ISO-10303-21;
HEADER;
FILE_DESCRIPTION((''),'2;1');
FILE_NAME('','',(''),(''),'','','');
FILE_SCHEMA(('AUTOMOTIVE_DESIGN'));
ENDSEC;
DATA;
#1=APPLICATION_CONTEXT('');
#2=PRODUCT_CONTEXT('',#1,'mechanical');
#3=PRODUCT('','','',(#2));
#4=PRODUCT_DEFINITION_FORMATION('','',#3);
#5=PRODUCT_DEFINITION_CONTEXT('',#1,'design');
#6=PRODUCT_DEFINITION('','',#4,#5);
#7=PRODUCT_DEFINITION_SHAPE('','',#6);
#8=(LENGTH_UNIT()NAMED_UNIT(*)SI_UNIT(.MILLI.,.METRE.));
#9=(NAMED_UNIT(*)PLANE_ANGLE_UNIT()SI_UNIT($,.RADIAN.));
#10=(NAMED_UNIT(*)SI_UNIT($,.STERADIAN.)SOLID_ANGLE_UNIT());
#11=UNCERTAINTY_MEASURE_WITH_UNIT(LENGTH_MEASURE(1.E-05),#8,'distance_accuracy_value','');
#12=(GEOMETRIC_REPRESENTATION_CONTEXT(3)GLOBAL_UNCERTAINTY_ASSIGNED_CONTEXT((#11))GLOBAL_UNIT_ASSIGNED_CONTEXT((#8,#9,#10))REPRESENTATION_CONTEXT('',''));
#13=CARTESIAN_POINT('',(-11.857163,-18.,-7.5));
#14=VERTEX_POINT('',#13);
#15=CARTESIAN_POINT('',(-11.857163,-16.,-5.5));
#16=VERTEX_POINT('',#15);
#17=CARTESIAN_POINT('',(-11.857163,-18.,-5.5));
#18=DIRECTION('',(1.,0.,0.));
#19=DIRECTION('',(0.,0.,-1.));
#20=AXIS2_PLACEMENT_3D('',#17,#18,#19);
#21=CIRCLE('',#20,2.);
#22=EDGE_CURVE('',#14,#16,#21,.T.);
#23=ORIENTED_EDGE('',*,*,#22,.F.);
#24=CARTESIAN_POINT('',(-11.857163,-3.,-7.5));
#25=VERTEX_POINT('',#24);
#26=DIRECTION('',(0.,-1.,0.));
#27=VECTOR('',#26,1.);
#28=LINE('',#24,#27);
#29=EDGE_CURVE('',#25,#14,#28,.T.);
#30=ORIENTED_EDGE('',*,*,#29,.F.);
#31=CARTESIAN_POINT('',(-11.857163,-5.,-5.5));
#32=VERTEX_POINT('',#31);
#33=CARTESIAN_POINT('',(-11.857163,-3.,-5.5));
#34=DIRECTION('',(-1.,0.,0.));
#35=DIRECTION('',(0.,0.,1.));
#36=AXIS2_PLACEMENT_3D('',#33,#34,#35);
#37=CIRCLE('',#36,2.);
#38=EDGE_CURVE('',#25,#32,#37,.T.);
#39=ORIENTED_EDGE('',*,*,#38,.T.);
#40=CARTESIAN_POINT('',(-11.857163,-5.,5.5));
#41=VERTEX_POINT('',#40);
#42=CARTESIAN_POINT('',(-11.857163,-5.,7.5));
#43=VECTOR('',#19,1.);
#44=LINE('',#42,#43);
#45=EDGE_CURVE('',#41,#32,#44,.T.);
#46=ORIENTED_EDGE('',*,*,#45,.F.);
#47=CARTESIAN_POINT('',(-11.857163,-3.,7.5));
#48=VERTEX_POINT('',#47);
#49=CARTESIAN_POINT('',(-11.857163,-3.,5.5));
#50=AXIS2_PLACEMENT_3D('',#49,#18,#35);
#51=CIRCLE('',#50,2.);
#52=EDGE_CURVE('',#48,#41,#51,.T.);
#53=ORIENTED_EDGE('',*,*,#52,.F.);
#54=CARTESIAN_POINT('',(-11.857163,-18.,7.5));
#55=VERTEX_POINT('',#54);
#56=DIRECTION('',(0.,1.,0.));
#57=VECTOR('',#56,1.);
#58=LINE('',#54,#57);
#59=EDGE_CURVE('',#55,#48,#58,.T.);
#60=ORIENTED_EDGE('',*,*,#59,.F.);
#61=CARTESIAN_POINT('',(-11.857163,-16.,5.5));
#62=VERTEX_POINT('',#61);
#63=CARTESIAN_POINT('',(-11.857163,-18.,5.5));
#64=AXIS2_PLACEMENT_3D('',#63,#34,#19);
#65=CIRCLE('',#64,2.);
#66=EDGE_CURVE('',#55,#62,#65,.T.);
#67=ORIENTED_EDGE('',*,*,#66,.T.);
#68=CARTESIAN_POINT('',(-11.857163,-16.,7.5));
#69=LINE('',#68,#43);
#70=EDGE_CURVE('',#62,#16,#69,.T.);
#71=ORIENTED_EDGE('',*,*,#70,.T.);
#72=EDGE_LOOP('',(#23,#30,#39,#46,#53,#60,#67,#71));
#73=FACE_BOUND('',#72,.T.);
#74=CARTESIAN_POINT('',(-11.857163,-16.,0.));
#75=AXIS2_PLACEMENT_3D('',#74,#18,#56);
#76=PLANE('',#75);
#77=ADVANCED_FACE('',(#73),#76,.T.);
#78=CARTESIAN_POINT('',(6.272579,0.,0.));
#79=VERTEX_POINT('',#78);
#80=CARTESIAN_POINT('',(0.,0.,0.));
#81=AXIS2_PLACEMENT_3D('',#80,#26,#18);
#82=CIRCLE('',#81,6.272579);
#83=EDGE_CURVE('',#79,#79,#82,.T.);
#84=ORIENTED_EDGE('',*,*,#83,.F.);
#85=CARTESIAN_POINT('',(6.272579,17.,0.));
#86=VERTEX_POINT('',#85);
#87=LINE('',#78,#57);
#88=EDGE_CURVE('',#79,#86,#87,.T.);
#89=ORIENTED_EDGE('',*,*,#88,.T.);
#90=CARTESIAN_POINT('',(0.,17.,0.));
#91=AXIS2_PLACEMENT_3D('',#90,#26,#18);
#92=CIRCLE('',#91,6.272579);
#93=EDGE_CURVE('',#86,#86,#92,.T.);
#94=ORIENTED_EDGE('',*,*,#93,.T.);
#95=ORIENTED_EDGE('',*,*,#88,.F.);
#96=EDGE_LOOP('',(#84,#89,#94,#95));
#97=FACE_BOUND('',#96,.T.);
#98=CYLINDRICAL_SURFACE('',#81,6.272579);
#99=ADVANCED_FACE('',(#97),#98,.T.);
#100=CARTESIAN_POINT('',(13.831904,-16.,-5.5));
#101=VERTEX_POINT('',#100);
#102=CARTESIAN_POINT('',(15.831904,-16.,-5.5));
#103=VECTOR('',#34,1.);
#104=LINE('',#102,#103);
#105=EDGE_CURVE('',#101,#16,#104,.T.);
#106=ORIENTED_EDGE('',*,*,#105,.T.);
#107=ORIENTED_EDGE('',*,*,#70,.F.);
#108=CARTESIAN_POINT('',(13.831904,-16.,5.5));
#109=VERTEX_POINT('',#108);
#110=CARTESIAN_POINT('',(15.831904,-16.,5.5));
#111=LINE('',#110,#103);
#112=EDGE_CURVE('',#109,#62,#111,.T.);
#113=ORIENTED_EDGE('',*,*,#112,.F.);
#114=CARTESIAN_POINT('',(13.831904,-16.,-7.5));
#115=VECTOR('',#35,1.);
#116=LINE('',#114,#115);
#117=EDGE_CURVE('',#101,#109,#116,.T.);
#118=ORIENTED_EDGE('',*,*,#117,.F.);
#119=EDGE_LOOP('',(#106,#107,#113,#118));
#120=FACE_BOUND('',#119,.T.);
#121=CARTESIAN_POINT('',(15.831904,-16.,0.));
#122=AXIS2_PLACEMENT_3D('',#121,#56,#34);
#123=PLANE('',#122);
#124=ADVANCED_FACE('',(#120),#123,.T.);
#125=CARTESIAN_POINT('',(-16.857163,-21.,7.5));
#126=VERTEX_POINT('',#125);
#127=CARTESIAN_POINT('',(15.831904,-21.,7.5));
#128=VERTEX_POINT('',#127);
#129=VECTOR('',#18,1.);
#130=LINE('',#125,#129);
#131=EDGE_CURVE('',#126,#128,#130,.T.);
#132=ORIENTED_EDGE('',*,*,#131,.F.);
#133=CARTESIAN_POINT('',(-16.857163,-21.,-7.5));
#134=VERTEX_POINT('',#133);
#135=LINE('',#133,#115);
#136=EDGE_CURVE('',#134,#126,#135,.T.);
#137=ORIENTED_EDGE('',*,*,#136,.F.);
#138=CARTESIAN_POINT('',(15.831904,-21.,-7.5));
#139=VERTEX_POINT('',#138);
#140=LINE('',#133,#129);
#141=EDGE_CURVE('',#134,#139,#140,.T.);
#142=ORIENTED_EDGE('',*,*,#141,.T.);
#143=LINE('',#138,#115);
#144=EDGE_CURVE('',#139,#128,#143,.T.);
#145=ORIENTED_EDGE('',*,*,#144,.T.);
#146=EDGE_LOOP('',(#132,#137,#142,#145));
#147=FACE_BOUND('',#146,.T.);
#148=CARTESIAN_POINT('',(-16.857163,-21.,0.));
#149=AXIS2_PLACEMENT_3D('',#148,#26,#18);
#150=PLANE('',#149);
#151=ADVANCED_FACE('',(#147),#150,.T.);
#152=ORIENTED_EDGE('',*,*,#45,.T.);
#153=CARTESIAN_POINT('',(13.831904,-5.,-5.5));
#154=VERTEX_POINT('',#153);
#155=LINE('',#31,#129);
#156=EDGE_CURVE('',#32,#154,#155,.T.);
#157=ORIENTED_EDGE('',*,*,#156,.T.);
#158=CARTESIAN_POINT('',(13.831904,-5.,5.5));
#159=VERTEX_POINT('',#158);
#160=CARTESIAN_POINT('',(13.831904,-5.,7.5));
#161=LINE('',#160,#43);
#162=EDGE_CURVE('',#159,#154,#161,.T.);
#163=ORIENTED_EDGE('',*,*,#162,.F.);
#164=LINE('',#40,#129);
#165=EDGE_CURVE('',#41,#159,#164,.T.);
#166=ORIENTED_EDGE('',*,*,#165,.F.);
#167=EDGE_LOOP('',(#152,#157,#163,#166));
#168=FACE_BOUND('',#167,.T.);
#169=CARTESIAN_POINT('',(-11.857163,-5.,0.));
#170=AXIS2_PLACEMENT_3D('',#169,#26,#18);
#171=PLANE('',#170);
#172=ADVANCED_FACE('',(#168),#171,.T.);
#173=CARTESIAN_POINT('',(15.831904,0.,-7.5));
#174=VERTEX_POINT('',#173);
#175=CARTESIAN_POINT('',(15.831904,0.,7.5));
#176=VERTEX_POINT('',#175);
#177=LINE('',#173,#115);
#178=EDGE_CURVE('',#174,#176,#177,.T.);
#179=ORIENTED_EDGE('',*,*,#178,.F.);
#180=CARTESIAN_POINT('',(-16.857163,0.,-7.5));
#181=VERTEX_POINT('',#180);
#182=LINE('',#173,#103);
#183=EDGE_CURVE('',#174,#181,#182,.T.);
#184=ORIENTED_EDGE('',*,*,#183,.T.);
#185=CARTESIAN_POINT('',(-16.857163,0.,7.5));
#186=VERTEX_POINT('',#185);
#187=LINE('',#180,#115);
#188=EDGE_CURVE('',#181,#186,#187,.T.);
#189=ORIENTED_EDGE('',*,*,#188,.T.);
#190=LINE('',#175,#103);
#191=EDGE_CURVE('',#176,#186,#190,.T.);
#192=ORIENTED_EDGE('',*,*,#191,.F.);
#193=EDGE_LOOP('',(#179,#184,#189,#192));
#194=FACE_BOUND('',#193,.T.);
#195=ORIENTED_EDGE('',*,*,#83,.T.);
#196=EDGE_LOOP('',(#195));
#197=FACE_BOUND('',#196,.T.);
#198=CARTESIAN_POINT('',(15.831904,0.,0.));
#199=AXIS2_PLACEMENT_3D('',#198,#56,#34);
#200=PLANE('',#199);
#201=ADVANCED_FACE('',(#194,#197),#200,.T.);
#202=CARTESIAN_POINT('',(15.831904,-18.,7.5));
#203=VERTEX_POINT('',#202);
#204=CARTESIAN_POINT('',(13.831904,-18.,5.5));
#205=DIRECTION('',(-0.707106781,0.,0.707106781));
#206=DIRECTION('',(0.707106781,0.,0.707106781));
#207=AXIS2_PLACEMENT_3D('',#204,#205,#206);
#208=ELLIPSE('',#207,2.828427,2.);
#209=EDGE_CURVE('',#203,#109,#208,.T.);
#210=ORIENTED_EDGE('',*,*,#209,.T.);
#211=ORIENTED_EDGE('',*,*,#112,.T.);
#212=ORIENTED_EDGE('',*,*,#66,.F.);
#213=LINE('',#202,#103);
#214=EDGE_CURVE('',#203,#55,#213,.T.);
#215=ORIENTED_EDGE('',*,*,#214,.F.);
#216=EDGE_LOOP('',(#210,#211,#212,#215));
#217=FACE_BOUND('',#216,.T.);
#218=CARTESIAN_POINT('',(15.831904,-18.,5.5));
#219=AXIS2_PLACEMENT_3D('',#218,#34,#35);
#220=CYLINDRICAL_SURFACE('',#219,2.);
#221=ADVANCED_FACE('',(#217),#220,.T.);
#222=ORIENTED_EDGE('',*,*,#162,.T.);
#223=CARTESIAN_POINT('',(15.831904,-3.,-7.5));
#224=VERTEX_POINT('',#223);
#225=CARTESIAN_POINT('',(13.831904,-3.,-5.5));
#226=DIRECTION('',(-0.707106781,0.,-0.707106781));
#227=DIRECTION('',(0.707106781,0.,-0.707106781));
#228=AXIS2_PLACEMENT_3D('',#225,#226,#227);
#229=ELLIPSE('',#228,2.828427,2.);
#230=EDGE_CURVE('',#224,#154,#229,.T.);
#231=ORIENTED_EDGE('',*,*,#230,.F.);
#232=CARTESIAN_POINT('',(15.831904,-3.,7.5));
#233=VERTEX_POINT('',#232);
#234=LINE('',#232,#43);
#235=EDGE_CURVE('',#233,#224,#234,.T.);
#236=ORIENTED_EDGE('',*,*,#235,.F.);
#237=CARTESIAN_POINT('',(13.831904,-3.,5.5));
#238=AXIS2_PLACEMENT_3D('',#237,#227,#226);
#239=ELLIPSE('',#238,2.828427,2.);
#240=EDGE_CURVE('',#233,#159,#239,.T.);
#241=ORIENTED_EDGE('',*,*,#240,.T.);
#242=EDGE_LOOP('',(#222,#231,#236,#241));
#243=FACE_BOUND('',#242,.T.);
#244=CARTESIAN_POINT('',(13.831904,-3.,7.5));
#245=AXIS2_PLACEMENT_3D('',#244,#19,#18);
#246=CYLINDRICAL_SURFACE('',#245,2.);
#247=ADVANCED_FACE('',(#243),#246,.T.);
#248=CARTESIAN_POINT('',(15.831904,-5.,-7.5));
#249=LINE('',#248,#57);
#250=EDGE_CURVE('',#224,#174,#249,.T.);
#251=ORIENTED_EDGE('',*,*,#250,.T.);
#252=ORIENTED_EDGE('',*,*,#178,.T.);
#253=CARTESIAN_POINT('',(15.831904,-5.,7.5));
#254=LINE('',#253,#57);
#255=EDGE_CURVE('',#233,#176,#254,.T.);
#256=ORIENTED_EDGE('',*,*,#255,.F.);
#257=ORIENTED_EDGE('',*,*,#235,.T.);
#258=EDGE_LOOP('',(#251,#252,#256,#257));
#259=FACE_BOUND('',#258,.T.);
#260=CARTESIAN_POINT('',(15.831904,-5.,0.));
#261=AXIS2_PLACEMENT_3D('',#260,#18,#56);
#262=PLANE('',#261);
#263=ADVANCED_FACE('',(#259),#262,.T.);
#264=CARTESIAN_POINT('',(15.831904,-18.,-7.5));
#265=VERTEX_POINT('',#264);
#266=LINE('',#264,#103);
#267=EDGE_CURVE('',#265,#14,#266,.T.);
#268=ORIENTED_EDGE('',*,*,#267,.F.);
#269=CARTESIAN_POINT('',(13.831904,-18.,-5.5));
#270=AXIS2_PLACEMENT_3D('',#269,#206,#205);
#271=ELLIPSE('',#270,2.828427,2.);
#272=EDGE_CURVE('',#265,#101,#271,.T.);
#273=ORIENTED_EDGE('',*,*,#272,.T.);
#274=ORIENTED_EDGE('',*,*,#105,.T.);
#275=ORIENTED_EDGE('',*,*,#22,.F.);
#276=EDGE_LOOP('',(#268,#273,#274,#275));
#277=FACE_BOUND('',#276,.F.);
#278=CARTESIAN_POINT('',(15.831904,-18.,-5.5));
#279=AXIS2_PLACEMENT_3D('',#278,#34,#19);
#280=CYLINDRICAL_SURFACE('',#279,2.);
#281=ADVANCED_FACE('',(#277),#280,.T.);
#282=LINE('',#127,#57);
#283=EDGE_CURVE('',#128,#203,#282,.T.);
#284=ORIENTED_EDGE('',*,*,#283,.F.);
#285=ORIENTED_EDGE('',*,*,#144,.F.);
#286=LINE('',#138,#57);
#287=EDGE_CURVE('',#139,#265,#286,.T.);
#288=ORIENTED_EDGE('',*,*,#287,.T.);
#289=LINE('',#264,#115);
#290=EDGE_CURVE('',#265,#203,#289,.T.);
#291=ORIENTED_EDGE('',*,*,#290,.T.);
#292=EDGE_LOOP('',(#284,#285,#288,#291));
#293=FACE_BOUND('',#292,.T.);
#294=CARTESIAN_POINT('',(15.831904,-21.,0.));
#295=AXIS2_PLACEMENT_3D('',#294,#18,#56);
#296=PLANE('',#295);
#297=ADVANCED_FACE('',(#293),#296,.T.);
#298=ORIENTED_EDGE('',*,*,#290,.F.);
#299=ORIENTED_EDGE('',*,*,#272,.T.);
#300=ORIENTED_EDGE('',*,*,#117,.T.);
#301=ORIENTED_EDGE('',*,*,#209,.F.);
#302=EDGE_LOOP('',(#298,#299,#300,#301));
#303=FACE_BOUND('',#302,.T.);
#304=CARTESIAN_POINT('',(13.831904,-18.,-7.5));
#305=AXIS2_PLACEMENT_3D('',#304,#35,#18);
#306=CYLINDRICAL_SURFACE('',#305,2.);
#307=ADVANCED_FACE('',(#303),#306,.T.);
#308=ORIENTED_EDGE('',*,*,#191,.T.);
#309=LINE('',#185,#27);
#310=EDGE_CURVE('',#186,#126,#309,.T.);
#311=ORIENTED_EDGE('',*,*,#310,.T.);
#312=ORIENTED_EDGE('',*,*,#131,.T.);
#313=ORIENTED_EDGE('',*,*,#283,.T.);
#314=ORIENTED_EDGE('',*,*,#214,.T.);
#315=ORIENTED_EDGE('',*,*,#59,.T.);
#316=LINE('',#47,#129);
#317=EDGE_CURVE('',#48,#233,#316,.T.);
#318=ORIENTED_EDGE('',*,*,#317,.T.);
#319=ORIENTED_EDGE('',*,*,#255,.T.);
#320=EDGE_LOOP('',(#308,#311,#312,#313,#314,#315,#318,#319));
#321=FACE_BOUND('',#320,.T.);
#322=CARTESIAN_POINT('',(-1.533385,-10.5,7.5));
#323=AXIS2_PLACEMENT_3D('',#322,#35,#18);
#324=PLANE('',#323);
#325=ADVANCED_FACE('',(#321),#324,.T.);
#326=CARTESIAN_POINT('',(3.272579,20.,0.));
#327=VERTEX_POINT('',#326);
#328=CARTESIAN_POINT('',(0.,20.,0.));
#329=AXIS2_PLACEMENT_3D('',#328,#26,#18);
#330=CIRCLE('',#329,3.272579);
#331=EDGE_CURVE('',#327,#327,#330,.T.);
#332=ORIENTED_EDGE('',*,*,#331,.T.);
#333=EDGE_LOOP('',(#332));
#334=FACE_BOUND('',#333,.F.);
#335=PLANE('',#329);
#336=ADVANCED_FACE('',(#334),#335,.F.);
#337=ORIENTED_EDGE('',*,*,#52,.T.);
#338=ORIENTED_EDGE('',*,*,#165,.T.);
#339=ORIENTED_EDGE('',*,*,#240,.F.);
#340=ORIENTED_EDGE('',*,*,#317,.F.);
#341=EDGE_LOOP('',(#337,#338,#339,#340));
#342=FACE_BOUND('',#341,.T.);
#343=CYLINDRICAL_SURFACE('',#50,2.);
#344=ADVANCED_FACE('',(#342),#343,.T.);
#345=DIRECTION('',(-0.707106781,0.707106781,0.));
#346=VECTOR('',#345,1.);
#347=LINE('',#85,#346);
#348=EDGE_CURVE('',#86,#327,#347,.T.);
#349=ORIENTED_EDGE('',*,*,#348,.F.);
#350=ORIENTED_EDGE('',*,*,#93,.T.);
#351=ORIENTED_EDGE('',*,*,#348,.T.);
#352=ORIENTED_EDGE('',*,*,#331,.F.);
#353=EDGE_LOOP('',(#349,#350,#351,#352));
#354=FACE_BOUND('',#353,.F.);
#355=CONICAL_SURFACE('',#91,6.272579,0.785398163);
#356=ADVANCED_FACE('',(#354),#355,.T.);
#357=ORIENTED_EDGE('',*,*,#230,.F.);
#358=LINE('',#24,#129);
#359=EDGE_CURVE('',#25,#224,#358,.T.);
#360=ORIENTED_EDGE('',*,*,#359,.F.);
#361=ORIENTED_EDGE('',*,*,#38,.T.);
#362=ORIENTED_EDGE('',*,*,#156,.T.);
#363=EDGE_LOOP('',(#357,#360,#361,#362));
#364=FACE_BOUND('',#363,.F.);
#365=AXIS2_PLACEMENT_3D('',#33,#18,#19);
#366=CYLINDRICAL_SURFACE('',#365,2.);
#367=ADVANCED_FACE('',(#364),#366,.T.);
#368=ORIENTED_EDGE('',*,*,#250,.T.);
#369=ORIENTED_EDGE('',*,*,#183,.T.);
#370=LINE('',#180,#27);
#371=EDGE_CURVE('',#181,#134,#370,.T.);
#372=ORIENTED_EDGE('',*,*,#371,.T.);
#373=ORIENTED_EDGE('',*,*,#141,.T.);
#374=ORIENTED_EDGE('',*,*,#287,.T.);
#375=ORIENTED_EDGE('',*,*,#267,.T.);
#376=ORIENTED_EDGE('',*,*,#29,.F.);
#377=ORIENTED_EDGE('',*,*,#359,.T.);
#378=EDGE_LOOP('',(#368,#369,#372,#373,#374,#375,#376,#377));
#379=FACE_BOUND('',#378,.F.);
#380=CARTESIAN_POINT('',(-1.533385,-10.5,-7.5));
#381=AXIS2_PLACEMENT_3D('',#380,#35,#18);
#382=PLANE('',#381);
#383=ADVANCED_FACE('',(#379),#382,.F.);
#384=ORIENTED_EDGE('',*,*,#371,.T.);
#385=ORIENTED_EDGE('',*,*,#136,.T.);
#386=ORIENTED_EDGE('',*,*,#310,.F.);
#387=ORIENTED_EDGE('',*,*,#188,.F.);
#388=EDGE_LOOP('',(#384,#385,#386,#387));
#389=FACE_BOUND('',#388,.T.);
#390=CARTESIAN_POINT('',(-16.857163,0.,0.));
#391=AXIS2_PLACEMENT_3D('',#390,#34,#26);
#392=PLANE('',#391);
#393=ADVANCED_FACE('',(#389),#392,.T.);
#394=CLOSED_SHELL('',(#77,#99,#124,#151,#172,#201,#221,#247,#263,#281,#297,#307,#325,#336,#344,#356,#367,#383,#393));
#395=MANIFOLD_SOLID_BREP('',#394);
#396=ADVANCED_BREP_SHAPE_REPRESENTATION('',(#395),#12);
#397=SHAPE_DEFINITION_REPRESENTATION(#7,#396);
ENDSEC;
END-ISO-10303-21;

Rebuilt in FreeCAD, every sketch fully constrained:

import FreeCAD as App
import Part
import Sketcher

V = App.Vector


def edges_at(feature, points):
    """Names of the edges that pass closest to the given points."""
    edges = feature.Shape.Edges
    near = lambda p: min(range(len(edges)), key=lambda i: edges[i].distToShape(Part.Vertex(*p))[0])
    return sorted({f"Edge{near(p) + 1}" for p in points})


def add_polygon(sketch, points):
    """Adds a closed chain of lines whose ends are joined by coincident constraints."""
    first, n = sketch.GeometryCount, len(points)
    for a, b in zip(points, points[1:] + points[:1]):
        sketch.addGeometry(Part.LineSegment(App.Vector(*a, 0), App.Vector(*b, 0)), False)
    for i in range(n):
        sketch.addConstraint(Sketcher.Constraint("Coincident", first + i, 2, first + (i + 1) % n, 1))

doc = App.newDocument("Part")
body = doc.addObject("PartDesign::Body", "Body")

# Sketch on XY plane
sketch1 = body.newObject("Sketcher::SketchObject", "Sketch")
sketch1.AttachmentSupport = (doc.getObject("XY_Plane"), [""])
sketch1.MapMode = "FlatFace"
add_polygon(sketch1, [(15.831904, -5), (15.831904, 0), (-16.857163, 0), (-16.857163, -21), (15.831904, -21), (15.831904, -16), (-11.857163, -16), (-11.857163, -5)])  # lines 0-7
sketch1.addConstraint([
    Sketcher.Constraint("Vertical", 0),
    Sketcher.Constraint("Horizontal", 1),
    Sketcher.Constraint("Vertical", 2),
    Sketcher.Constraint("Horizontal", 3),
    Sketcher.Constraint("Vertical", 4),
    Sketcher.Constraint("Horizontal", 5),
    Sketcher.Constraint("Vertical", 6),
    Sketcher.Constraint("Horizontal", 7),
    Sketcher.Constraint("PointOnObject", 0, 2, -1),
    Sketcher.Constraint("Vertical", 0, 2, 3, 2),
    Sketcher.Constraint("Equal", 0, 4),
    Sketcher.Constraint("DistanceY", 0, 1, 0, 2, 5.0),
    Sketcher.Constraint("DistanceY", 2, 2, 2, 1, 21.0),
    Sketcher.Constraint("DistanceX", 2, 2, 5, 2, 5.0),
    Sketcher.Constraint("DistanceX", 1, 2, 1, 1, 32.689067),
    Sketcher.Constraint("DistanceX", -1, 1, 0, 2, 15.831904),
])
pad1 = body.newObject("PartDesign::Pad", "Pad")
pad1.Profile = sketch1
pad1.Length = 15
pad1.Midplane = True

# Sketch on XZ plane
sketch2 = body.newObject("Sketcher::SketchObject", "Sketch001")
sketch2.AttachmentSupport = (doc.getObject("XZ_Plane"), [""])
sketch2.MapMode = "FlatFace"
sketch2.addGeometry(Part.Circle(V(0, 0, 0), V(0, 0, 1), 6.272579), False)
sketch2.addConstraint([
    Sketcher.Constraint("Coincident", 0, 3, -1, 1),
    Sketcher.Constraint("Diameter", 0, 12.545158),
])
pad2 = body.newObject("PartDesign::Pad", "Pad001")
pad2.Profile = sketch2
pad2.Length = 20
pad2.Reversed = True
doc.recompute()

chamfer = body.newObject("PartDesign::Chamfer", "Chamfer")
chamfer.Base = (pad2, edges_at(pad2, [(-6.273, 20, 0)]))
chamfer.Size = 3
doc.recompute()

fillet = body.newObject("PartDesign::Fillet", "Fillet")
fillet.Base = (chamfer, edges_at(chamfer, [
    (1.987, -5, -7.5),
    (1.987, -16, -7.5),
    (15.832, -16, 0),
    (15.832, -5, 0),
    (1.987, -5, 7.5),
    (1.987, -16, 7.5),
]))
fillet.Radius = 2

doc.recompute()
